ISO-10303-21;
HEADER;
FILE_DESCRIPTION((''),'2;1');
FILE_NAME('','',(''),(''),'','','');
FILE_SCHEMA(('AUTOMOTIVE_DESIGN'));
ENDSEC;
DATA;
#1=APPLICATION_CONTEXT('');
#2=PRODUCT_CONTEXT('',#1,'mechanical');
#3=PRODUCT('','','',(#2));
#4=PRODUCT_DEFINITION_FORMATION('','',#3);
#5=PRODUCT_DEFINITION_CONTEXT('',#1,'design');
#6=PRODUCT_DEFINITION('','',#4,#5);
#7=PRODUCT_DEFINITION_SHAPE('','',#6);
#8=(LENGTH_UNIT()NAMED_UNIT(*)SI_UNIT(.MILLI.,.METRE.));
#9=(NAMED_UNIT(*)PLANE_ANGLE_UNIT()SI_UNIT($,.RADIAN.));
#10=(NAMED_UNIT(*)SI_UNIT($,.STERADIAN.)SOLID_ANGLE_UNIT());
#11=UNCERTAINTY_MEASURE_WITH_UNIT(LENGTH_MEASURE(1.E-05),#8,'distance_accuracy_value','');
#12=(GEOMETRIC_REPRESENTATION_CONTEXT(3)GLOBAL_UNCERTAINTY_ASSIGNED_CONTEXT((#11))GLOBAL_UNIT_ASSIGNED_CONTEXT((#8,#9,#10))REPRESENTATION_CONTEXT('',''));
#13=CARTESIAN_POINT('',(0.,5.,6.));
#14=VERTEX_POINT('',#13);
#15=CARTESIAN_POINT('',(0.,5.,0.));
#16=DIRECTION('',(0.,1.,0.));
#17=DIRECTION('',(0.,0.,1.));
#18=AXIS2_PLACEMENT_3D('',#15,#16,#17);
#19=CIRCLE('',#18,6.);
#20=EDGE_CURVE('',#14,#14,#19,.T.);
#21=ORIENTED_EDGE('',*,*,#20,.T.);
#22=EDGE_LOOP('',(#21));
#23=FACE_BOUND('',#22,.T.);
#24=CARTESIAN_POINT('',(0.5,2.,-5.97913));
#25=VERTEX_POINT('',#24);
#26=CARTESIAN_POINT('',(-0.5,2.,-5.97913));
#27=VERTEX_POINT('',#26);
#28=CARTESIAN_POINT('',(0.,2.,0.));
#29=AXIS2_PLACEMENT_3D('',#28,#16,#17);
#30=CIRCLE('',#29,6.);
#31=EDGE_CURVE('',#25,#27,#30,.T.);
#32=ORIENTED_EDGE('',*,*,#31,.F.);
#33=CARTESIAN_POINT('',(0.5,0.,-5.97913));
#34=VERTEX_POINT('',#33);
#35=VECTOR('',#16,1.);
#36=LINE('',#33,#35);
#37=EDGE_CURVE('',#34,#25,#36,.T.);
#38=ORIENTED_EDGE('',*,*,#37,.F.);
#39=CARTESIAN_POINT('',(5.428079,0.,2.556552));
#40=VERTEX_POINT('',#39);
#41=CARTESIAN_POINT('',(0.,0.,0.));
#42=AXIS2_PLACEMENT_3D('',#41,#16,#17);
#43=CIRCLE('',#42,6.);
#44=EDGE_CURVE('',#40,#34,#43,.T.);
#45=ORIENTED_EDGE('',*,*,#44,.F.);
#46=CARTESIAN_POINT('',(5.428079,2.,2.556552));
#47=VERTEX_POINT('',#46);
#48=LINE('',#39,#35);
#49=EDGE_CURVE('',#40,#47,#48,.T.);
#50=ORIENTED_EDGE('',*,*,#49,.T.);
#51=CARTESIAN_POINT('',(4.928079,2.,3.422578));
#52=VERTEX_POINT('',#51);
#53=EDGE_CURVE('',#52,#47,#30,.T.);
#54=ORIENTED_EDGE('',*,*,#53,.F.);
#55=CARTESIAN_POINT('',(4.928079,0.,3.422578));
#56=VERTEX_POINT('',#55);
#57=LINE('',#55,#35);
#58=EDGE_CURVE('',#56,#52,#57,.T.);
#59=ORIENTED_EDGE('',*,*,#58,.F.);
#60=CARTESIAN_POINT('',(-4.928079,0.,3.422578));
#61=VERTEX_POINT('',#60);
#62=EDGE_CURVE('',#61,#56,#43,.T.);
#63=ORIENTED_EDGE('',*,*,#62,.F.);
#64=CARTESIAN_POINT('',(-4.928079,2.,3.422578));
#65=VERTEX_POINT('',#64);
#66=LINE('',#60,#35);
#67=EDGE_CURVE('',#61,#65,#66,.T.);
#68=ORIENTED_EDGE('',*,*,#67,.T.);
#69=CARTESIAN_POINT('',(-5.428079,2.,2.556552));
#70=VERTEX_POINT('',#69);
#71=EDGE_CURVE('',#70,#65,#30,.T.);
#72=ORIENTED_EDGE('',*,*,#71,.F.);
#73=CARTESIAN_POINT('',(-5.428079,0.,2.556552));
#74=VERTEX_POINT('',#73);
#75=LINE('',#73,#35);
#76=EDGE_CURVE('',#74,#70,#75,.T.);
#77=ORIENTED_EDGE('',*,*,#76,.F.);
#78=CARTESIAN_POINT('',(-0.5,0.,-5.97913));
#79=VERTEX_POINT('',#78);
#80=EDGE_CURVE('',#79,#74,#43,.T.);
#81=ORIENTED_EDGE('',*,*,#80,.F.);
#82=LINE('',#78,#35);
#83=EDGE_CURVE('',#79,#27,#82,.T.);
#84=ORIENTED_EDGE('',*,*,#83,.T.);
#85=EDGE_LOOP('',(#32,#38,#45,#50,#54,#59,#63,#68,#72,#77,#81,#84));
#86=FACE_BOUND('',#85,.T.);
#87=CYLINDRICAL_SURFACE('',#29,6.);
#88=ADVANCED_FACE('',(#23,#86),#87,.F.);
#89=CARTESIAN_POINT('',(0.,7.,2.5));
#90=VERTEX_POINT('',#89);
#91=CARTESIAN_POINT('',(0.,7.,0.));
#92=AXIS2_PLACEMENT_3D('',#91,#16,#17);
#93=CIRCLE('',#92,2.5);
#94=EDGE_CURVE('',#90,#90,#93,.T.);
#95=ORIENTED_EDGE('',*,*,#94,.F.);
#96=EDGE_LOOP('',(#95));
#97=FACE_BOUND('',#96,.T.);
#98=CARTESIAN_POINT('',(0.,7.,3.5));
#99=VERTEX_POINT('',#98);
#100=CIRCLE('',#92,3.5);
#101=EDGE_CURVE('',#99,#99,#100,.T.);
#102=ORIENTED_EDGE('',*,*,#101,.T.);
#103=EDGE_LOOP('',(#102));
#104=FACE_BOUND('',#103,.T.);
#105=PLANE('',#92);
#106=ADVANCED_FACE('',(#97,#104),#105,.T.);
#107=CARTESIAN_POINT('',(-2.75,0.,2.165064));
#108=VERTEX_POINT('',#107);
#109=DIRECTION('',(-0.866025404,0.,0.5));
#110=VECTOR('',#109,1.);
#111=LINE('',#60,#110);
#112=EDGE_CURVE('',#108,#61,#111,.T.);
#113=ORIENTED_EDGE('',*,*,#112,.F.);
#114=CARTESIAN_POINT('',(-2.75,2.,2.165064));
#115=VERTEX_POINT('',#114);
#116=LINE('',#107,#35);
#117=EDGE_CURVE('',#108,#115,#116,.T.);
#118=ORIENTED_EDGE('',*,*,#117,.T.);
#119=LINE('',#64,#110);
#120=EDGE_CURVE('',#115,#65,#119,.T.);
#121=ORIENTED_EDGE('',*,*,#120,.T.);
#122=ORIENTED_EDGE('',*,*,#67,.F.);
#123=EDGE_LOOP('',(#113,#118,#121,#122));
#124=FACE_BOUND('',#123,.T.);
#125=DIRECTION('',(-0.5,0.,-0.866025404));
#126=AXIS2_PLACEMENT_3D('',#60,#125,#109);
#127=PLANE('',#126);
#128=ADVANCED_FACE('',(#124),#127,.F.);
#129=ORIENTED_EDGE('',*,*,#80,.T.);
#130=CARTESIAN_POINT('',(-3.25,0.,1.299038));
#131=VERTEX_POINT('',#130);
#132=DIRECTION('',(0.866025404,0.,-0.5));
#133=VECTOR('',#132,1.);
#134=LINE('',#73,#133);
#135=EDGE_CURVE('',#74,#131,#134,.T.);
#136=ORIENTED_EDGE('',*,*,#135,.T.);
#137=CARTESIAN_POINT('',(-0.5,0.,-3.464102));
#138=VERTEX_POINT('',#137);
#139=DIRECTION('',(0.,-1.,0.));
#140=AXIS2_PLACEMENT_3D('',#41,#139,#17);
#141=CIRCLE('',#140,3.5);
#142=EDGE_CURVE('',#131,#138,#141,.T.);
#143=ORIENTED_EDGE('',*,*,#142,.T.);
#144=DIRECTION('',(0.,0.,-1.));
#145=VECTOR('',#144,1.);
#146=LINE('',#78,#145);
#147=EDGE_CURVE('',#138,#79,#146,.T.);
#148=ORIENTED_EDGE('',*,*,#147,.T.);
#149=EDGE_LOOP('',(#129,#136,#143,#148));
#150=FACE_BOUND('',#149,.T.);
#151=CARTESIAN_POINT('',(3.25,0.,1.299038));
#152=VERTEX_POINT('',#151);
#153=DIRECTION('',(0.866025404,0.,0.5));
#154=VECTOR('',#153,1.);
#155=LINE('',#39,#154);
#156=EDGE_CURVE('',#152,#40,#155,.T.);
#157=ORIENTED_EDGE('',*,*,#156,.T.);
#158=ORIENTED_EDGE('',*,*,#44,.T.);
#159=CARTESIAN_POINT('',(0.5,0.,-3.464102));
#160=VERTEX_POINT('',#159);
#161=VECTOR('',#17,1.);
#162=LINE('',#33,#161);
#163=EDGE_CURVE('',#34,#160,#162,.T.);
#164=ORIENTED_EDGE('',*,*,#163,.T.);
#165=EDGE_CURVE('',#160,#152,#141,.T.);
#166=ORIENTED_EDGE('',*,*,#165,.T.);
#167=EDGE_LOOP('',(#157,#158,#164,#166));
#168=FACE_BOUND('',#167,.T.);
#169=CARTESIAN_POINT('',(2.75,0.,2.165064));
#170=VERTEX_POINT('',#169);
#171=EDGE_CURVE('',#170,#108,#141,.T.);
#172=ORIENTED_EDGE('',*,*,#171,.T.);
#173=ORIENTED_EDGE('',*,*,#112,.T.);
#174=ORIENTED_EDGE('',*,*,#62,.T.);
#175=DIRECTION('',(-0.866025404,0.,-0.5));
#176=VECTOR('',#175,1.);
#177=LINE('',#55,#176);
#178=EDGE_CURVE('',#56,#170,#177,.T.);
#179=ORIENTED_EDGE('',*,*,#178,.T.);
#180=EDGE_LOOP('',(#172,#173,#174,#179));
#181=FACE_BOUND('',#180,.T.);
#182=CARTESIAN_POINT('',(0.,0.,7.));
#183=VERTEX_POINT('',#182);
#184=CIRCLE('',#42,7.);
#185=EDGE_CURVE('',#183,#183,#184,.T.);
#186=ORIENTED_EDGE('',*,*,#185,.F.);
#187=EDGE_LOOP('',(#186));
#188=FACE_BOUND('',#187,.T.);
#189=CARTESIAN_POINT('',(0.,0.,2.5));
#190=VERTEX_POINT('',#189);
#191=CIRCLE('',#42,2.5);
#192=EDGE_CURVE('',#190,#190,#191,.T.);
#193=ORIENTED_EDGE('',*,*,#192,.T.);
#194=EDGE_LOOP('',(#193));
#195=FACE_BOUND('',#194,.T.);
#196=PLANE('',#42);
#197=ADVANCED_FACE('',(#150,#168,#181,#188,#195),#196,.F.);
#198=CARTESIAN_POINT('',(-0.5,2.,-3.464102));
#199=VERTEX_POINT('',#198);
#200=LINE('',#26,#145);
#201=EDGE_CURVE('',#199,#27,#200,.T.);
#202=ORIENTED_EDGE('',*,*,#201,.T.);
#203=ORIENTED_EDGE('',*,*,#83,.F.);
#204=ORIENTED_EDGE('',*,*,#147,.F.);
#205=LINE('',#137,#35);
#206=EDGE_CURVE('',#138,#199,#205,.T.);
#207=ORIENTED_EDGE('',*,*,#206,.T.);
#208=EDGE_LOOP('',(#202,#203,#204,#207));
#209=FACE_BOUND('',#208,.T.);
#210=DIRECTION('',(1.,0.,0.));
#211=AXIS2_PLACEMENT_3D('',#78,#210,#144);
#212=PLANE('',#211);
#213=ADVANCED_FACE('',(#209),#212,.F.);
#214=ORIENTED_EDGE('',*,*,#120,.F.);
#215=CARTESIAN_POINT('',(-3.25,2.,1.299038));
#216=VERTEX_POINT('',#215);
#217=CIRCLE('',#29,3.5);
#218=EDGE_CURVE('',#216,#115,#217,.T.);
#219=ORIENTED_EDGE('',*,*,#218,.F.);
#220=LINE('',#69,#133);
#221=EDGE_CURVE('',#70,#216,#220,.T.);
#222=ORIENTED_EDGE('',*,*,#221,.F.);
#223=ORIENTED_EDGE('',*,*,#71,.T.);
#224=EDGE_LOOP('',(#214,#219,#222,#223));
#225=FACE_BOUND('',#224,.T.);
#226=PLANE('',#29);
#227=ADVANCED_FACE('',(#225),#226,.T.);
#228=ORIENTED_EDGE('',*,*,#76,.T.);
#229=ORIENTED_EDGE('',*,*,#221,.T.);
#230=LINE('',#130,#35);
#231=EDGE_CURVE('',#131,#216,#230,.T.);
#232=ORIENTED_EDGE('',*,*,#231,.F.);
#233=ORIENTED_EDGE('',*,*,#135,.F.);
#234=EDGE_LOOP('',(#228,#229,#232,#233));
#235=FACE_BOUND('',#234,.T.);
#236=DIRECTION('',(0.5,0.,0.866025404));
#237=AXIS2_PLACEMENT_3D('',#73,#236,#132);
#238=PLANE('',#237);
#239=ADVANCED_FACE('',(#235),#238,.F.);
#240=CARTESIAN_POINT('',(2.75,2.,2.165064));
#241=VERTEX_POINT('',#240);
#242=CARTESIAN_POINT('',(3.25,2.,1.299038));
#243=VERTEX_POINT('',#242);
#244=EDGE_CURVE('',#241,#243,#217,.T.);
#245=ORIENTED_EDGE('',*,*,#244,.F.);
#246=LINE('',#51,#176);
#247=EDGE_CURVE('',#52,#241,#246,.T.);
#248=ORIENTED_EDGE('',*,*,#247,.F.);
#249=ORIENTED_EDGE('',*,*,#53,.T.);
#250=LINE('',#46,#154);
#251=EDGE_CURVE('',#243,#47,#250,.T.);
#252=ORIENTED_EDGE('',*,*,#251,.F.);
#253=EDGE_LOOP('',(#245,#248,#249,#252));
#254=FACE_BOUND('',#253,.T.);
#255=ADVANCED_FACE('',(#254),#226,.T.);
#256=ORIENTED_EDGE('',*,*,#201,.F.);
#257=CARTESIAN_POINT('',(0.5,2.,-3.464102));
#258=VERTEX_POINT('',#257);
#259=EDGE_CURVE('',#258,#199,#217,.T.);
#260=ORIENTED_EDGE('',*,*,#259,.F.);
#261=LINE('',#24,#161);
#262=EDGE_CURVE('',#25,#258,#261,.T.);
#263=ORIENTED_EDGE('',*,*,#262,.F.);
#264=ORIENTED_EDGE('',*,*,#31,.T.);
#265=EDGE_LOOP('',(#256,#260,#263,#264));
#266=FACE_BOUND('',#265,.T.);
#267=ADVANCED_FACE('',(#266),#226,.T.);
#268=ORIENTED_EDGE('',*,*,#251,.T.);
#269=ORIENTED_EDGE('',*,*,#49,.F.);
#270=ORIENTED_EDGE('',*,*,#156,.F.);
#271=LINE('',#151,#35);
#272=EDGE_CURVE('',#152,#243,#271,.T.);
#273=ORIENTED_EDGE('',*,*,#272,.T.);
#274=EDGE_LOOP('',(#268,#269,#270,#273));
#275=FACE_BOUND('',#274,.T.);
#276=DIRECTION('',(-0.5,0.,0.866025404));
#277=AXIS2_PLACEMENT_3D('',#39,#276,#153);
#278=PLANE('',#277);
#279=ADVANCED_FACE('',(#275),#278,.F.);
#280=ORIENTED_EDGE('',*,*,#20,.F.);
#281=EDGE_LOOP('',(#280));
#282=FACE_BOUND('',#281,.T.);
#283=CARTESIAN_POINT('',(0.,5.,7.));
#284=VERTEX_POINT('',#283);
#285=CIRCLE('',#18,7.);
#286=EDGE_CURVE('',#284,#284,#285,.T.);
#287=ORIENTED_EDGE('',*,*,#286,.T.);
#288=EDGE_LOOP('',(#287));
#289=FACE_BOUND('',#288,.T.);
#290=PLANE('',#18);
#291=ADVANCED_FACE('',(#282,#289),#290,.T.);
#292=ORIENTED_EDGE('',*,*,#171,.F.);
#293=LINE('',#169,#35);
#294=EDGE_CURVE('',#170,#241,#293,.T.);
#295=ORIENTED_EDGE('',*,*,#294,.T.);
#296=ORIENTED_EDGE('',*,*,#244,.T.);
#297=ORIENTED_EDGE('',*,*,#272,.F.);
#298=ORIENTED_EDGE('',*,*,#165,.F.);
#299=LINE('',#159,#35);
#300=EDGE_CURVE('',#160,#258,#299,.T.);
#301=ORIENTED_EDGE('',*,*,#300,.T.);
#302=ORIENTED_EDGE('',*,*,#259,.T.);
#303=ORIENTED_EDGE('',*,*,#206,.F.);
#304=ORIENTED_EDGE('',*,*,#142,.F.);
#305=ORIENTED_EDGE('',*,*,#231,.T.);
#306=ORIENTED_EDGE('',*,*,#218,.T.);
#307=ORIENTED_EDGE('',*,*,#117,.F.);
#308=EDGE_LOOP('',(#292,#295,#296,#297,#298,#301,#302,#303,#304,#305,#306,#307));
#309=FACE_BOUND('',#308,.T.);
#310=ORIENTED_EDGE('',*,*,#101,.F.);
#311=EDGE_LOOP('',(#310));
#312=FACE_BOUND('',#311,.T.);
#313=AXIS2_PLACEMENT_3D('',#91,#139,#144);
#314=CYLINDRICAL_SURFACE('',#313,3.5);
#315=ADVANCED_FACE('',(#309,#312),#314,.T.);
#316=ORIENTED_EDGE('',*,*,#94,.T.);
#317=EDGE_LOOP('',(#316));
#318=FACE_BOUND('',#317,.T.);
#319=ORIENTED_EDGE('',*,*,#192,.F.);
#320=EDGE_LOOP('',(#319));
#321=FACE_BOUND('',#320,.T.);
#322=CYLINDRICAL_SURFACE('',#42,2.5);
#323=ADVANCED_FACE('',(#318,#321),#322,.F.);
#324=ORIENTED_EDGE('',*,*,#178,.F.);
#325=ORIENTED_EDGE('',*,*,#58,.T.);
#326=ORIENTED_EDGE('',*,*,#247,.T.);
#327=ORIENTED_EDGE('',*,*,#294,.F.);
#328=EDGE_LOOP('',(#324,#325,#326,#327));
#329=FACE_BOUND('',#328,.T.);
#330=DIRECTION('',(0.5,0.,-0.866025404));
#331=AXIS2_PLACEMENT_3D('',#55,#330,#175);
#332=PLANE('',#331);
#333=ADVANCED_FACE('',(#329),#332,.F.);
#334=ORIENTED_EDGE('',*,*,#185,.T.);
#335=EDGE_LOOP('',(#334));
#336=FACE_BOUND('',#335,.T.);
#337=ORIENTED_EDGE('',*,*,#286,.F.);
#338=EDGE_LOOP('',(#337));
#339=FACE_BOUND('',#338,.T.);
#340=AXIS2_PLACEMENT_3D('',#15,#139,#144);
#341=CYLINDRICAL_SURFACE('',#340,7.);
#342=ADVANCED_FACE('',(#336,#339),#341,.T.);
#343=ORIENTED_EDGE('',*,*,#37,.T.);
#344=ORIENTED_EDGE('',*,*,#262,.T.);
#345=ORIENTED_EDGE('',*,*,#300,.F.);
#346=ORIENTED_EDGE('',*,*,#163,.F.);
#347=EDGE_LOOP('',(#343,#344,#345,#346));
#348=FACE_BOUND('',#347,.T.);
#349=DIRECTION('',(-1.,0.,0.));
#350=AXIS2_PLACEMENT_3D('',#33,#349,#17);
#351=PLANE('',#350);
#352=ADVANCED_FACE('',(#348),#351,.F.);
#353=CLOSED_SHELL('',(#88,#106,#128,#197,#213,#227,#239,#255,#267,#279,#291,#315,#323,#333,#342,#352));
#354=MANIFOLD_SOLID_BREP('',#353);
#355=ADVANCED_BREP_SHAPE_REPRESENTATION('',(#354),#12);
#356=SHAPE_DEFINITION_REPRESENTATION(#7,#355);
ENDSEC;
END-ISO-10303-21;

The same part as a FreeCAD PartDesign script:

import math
import FreeCAD as App
import Part
import Sketcher

V = App.Vector
Q = App.Units.Quantity

doc = App.newDocument("Part")
params = doc.addObject("Spreadsheet::Sheet", "Params")
for row, (alias, value) in enumerate([
    ("sketch1_diameter", "14 mm"),
    ("pad1_length", "5 mm"),
    ("sketch2_diameter", "12 mm"),
    ("pocket1_length", "3 mm"),
    ("sketch3_diameter", "7 mm"),
    ("pad2_length", "5 mm"),
    ("sketch4_diameter", "5 mm"),
    ("sketch5_radius", "6 mm"),
    ("sketch5_radius2", "3.5 mm"),
], start=1):
    params.set(f"A{row}", alias)
    params.set(f"B{row}", "=" + value)
    params.setAlias(f"B{row}", alias)

body = doc.addObject("PartDesign::Body", "Body")

# Sketch on XZ plane
sketch1 = body.newObject("Sketcher::SketchObject", "Sketch")
sketch1.AttachmentSupport = (doc.getObject("XZ_Plane"), [""])
sketch1.MapMode = "FlatFace"
sketch1.addGeometry(Part.Circle(V(0, 0, 0), V(0, 0, 1), 7), False)
sketch1.addConstraint(Sketcher.Constraint("Coincident", 0, 3, -1, 1))
sketch1.addConstraint(Sketcher.Constraint("Diameter", 0, Q("14 mm")))
sketch1.setExpression("Constraints[1]", "Params.sketch1_diameter")
pad1 = body.newObject("PartDesign::Pad", "Pad")
pad1.Profile = sketch1
pad1.setExpression("Length", "Params.pad1_length")
pad1.Reversed = True

# Sketch on XZ plane
sketch2 = body.newObject("Sketcher::SketchObject", "Sketch001")
sketch2.AttachmentSupport = (doc.getObject("XZ_Plane"), [""])
sketch2.MapMode = "FlatFace"
sketch2.AttachmentOffset = App.Placement(V(0, 0, -5), App.Rotation())
sketch2.addGeometry(Part.Circle(V(0, 0, 0), V(0, 0, 1), 6), False)
sketch2.addConstraint(Sketcher.Constraint("Coincident", 0, 3, -1, 1))
sketch2.addConstraint(Sketcher.Constraint("Diameter", 0, Q("12 mm")))
sketch2.setExpression("Constraints[1]", "Params.sketch2_diameter")
pocket1 = body.newObject("PartDesign::Pocket", "Pocket")
pocket1.Profile = sketch2
pocket1.setExpression("Length", "Params.pocket1_length")
pocket1.Reversed = True

# Sketch on XZ plane
sketch3 = body.newObject("Sketcher::SketchObject", "Sketch002")
sketch3.AttachmentSupport = (doc.getObject("XZ_Plane"), [""])
sketch3.MapMode = "FlatFace"
sketch3.AttachmentOffset = App.Placement(V(0, 0, -2), App.Rotation())
sketch3.addGeometry(Part.Circle(V(0, 0, 0), V(0, 0, 1), 3.5), False)
sketch3.addConstraint(Sketcher.Constraint("Coincident", 0, 3, -1, 1))
sketch3.addConstraint(Sketcher.Constraint("Diameter", 0, Q("7 mm")))
sketch3.setExpression("Constraints[1]", "Params.sketch3_diameter")
pad2 = body.newObject("PartDesign::Pad", "Pad001")
pad2.Profile = sketch3
pad2.setExpression("Length", "Params.pad2_length")
pad2.Reversed = True

# Sketch on XZ plane
sketch4 = body.newObject("Sketcher::SketchObject", "Sketch003")
sketch4.AttachmentSupport = (doc.getObject("XZ_Plane"), [""])
sketch4.MapMode = "FlatFace"
sketch4.AttachmentOffset = App.Placement(V(0, 0, -7), App.Rotation())
sketch4.addGeometry(Part.Circle(V(0, 0, 0), V(0, 0, 1), 2.5), False)
sketch4.addConstraint(Sketcher.Constraint("Coincident", 0, 3, -1, 1))
sketch4.addConstraint(Sketcher.Constraint("Diameter", 0, Q("5 mm")))
sketch4.setExpression("Constraints[1]", "Params.sketch4_diameter")
pocket2 = body.newObject("PartDesign::Pocket", "Pocket001")
pocket2.Profile = sketch4
pocket2.Type = "ThroughAll"
pocket2.Reversed = True

# Sketch on XZ plane
sketch5 = body.newObject("Sketcher::SketchObject", "Sketch004")
sketch5.AttachmentSupport = (doc.getObject("XZ_Plane"), [""])
sketch5.MapMode = "FlatFace"
sketch5.AttachmentOffset = App.Placement(V(0, 0, -2), App.Rotation())
sketch5.addGeometry(Part.LineSegment(V(-0.5, -3.464102, 0), V(-0.5, -5.97913, 0)), False)
sketch5.addGeometry(Part.ArcOfCircle(Part.Circle(V(0, 0, 0), V(0, 0, 1), 6), math.radians(154.780192), math.radians(265.219808)), False)
sketch5.addGeometry(Part.LineSegment(V(-5.428079, 2.556552, 0), V(-3.25, 1.299038, 0)), False)
sketch5.addGeometry(Part.ArcOfCircle(Part.Circle(V(0, 0, 0), V(0, 0, 1), 3.5), math.radians(158.213211), math.radians(261.786789)), False)
sketch5.addGeometry(Part.LineSegment(V(0.5, -5.97913, 0), V(0.5, -3.464102, 0)), False)
sketch5.addGeometry(Part.ArcOfCircle(Part.Circle(V(0, 0, 0), V(0, 0, 1), 3.5), math.radians(-81.786789), math.radians(21.786789)), False)
sketch5.addGeometry(Part.LineSegment(V(3.25, 1.299038, 0), V(5.428079, 2.556552, 0)), False)
sketch5.addGeometry(Part.ArcOfCircle(Part.Circle(V(0, 0, 0), V(0, 0, 1), 6), math.radians(-85.219808), math.radians(25.219808)), False)
sketch5.addGeometry(Part.LineSegment(V(-2.75, 2.165064, 0), V(-4.928079, 3.422578, 0)), False)
sketch5.addGeometry(Part.ArcOfCircle(Part.Circle(V(0, 0, 0), V(0, 0, 1), 6), math.radians(34.780192), math.radians(145.219808)), False)
sketch5.addGeometry(Part.LineSegment(V(4.928079, 3.422578, 0), V(2.75, 2.165064, 0)), False)
sketch5.addGeometry(Part.ArcOfCircle(Part.Circle(V(0, 0, 0), V(0, 0, 1), 3.5), math.radians(38.213211), math.radians(141.786789)), False)
sketch5.addConstraint(Sketcher.Constraint("Coincident", 0, 2, 1, 2))
sketch5.addConstraint(Sketcher.Constraint("Coincident", 1, 1, 2, 1))
sketch5.addConstraint(Sketcher.Constraint("Coincident", 2, 2, 3, 1))
sketch5.addConstraint(Sketcher.Constraint("Coincident", 3, 2, 0, 1))
sketch5.addConstraint(Sketcher.Constraint("Coincident", 4, 2, 5, 1))
sketch5.addConstraint(Sketcher.Constraint("Coincident", 5, 2, 6, 1))
sketch5.addConstraint(Sketcher.Constraint("Coincident", 6, 2, 7, 2))
sketch5.addConstraint(Sketcher.Constraint("Coincident", 7, 1, 4, 1))
sketch5.addConstraint(Sketcher.Constraint("Coincident", 8, 2, 9, 2))
sketch5.addConstraint(Sketcher.Constraint("Coincident", 9, 1, 10, 1))
sketch5.addConstraint(Sketcher.Constraint("Coincident", 10, 2, 11, 1))
sketch5.addConstraint(Sketcher.Constraint("Coincident", 11, 2, 8, 1))
sketch5.addConstraint(Sketcher.Constraint("Vertical", 0))
sketch5.addConstraint(Sketcher.Constraint("Vertical", 4))
sketch5.addConstraint(Sketcher.Constraint("Coincident", 1, 3, -1, 1))
sketch5.addConstraint(Sketcher.Constraint("Coincident", 3, 3, -1, 1))
sketch5.addConstraint(Sketcher.Constraint("Coincident", 5, 3, -1, 1))
sketch5.addConstraint(Sketcher.Constraint("Coincident", 7, 3, -1, 1))
sketch5.addConstraint(Sketcher.Constraint("Coincident", 9, 3, -1, 1))
sketch5.addConstraint(Sketcher.Constraint("Coincident", 11, 3, -1, 1))
sketch5.addConstraint(Sketcher.Constraint("Equal", 3, 5))
sketch5.addConstraint(Sketcher.Constraint("Equal", 1, 7))
sketch5.addConstraint(Sketcher.Constraint("Equal", 7, 9))
sketch5.addConstraint(Sketcher.Constraint("Equal", 5, 11))
sketch5.addConstraint(Sketcher.Constraint("Parallel", 2, 8))
sketch5.addConstraint(Sketcher.Constraint("Parallel", 6, 10))
sketch5.addConstraint(Sketcher.Constraint("Horizontal", 3, 2, 4, 2))
sketch5.addConstraint(Sketcher.Constraint("Horizontal", 2, 2, 5, 2))
sketch5.addConstraint(Sketcher.Constraint("Horizontal", 1, 1, 6, 2))
sketch5.addConstraint(Sketcher.Constraint("Horizontal", 8, 2, 9, 1))
sketch5.addConstraint(Sketcher.Constraint("Equal", 6, 8))
sketch5.addConstraint(Sketcher.Constraint("Radius", 1, Q("6 mm")))
sketch5.addConstraint(Sketcher.Constraint("Radius", 3, Q("3.5 mm")))
sketch5.addConstraint(Sketcher.Constraint("Angle", 2, Q("-30 deg")))
sketch5.addConstraint(Sketcher.Constraint("DistanceX", 3, 2, 4, 2, Q("1 mm")))
sketch5.addConstraint(Sketcher.Constraint("DistanceX", 1, 1, 8, 2, Q("0.5 mm")))
sketch5.setExpression("Constraints[31]", "Params.sketch5_radius")
sketch5.setExpression("Constraints[32]", "Params.sketch5_radius2")
pocket3 = body.newObject("PartDesign::Pocket", "Pocket002")
pocket3.Profile = sketch5
pocket3.Type = "ThroughAll"
pocket3.Reversed = True

doc.recompute()
